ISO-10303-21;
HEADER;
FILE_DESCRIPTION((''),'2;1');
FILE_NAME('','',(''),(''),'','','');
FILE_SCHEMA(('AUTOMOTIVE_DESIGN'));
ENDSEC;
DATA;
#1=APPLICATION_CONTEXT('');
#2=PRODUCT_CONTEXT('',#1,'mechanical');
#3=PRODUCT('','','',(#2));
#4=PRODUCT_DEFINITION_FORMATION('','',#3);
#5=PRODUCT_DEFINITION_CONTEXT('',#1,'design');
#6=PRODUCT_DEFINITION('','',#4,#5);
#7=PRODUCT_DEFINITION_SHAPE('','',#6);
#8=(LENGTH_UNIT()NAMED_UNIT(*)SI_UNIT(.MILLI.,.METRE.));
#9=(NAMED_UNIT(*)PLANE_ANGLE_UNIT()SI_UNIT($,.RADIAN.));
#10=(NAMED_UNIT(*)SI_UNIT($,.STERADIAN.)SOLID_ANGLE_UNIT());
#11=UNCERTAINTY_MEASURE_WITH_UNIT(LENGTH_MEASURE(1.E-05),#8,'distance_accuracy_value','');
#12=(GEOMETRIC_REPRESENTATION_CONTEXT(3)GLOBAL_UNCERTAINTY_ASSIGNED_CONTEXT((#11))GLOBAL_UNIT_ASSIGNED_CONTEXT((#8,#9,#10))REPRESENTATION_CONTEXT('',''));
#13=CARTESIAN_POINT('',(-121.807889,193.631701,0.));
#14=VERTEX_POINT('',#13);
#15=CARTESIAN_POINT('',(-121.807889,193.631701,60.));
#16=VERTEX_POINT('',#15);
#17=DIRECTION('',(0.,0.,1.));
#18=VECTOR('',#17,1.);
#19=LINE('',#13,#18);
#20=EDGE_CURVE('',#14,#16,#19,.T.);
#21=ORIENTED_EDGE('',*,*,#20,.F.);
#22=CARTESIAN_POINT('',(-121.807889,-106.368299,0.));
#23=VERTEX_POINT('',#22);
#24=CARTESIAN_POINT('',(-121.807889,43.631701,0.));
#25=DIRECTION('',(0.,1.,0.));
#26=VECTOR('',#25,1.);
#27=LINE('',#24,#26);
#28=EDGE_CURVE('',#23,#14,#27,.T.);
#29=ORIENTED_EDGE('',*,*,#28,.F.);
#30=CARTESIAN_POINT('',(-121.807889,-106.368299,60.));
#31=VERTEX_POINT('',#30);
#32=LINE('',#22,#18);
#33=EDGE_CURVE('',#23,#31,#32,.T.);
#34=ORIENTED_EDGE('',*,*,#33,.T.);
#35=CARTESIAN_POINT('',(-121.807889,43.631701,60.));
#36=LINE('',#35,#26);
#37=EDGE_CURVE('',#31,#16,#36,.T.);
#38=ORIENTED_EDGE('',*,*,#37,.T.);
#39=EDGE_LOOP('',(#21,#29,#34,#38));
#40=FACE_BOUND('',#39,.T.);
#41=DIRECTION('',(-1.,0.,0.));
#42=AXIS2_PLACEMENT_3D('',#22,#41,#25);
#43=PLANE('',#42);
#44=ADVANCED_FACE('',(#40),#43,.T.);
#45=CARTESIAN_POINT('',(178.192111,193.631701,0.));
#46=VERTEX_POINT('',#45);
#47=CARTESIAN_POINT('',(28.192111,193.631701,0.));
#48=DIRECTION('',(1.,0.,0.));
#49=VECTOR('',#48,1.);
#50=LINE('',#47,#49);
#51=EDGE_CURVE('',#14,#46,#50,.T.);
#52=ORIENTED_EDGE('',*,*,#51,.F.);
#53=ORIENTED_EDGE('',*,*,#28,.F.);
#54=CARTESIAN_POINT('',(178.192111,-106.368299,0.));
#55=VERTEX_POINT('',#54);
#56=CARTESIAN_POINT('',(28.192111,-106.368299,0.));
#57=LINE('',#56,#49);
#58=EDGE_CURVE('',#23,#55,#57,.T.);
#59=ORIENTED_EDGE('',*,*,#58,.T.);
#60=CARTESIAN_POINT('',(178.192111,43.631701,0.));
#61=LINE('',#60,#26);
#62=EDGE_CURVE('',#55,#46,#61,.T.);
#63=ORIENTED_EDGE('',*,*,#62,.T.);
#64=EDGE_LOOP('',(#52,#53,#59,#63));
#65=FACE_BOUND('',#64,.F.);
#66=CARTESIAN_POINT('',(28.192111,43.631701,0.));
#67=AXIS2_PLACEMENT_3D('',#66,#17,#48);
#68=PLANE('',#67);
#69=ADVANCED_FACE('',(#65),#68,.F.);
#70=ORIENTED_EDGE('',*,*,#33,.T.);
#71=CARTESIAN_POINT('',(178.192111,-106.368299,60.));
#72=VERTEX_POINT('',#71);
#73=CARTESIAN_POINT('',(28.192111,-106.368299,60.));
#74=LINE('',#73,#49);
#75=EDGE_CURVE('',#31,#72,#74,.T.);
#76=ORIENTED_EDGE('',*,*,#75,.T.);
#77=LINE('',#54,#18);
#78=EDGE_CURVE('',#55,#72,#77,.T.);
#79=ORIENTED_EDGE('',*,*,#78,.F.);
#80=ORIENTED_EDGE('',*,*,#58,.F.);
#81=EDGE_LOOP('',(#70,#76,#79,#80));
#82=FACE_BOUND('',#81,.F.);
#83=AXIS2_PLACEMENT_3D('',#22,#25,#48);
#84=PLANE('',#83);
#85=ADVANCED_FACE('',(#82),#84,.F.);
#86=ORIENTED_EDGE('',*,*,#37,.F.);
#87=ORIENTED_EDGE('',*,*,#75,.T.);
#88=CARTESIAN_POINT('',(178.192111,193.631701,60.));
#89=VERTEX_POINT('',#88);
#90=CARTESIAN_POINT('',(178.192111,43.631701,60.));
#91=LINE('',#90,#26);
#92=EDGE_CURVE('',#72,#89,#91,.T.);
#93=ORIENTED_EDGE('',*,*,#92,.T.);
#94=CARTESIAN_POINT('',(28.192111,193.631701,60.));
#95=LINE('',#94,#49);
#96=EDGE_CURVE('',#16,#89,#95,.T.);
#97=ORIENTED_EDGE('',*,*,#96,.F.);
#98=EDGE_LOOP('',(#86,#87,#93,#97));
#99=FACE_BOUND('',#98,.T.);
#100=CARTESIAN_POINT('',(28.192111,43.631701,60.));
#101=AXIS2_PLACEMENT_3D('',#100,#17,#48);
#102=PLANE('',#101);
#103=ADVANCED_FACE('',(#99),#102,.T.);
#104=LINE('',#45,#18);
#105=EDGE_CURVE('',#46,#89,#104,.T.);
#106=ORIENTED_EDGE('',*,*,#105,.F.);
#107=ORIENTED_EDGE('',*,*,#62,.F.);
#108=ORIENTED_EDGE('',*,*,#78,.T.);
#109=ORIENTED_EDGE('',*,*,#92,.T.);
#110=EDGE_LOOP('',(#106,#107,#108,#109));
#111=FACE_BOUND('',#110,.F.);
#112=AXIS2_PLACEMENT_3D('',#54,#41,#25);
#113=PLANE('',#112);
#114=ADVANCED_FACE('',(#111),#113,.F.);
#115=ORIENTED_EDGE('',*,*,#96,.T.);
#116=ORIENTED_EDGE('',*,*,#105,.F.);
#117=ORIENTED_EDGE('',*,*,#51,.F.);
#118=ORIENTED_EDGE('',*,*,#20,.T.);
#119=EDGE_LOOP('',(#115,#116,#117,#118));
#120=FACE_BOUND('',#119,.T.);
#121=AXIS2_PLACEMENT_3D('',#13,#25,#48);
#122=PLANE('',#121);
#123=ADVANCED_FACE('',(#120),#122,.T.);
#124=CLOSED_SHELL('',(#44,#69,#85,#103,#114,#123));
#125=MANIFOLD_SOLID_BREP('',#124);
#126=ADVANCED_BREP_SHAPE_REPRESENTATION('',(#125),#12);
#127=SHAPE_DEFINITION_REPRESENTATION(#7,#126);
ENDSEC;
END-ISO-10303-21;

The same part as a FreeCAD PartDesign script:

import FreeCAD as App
import Part
import Sketcher
from FreeCAD import Vector
Q = App.Units.Quantity

doc = App.newDocument("Part")
body = doc.addObject("PartDesign::Body", "Body")

sketch1 = doc.addObject("Sketcher::SketchObject", "Sketch")
body.addObject(sketch1)
sketch1.AttachmentSupport = (doc.XY_Plane, [""])
sketch1.MapMode = "FlatFace"
sketch1.addGeometry(Part.LineSegment(Vector(-122, 194, 0), Vector(-122, -106, 0)), False)
sketch1.addGeometry(Part.LineSegment(Vector(-122, -106, 0), Vector(178, -106, 0)), False)
sketch1.addGeometry(Part.LineSegment(Vector(178, -106, 0), Vector(178, 194, 0)), False)
sketch1.addGeometry(Part.LineSegment(Vector(178, 194, 0), Vector(-122, 194, 0)), False)
sketch1.addConstraint(Sketcher.Constraint("Coincident", 0, 2, 1, 1))
sketch1.addConstraint(Sketcher.Constraint("Coincident", 1, 2, 2, 1))
sketch1.addConstraint(Sketcher.Constraint("Coincident", 2, 2, 3, 1))
sketch1.addConstraint(Sketcher.Constraint("Coincident", 3, 2, 0, 1))
sketch1.addConstraint(Sketcher.Constraint("Vertical", 0))
sketch1.addConstraint(Sketcher.Constraint("Horizontal", 1))
sketch1.addConstraint(Sketcher.Constraint("Vertical", 2))
sketch1.addConstraint(Sketcher.Constraint("Horizontal", 3))
sketch1.addConstraint(Sketcher.Constraint("Equal", 3, 0))
sketch1.addConstraint(Sketcher.Constraint("DistanceX", 1, 1, 1, 2, Q("300 mm")))
sketch1.addConstraint(Sketcher.Constraint("DistanceY", 0, 2, -1, 1, Q("106.368299 mm")))
sketch1.addConstraint(Sketcher.Constraint("DistanceX", 0, 2, -1, 1, Q("121.807889 mm")))
pad1 = doc.addObject("PartDesign::Pad", "Pad")
body.addObject(pad1)
pad1.Profile = sketch1
pad1.Length = 60

doc.recompute()
